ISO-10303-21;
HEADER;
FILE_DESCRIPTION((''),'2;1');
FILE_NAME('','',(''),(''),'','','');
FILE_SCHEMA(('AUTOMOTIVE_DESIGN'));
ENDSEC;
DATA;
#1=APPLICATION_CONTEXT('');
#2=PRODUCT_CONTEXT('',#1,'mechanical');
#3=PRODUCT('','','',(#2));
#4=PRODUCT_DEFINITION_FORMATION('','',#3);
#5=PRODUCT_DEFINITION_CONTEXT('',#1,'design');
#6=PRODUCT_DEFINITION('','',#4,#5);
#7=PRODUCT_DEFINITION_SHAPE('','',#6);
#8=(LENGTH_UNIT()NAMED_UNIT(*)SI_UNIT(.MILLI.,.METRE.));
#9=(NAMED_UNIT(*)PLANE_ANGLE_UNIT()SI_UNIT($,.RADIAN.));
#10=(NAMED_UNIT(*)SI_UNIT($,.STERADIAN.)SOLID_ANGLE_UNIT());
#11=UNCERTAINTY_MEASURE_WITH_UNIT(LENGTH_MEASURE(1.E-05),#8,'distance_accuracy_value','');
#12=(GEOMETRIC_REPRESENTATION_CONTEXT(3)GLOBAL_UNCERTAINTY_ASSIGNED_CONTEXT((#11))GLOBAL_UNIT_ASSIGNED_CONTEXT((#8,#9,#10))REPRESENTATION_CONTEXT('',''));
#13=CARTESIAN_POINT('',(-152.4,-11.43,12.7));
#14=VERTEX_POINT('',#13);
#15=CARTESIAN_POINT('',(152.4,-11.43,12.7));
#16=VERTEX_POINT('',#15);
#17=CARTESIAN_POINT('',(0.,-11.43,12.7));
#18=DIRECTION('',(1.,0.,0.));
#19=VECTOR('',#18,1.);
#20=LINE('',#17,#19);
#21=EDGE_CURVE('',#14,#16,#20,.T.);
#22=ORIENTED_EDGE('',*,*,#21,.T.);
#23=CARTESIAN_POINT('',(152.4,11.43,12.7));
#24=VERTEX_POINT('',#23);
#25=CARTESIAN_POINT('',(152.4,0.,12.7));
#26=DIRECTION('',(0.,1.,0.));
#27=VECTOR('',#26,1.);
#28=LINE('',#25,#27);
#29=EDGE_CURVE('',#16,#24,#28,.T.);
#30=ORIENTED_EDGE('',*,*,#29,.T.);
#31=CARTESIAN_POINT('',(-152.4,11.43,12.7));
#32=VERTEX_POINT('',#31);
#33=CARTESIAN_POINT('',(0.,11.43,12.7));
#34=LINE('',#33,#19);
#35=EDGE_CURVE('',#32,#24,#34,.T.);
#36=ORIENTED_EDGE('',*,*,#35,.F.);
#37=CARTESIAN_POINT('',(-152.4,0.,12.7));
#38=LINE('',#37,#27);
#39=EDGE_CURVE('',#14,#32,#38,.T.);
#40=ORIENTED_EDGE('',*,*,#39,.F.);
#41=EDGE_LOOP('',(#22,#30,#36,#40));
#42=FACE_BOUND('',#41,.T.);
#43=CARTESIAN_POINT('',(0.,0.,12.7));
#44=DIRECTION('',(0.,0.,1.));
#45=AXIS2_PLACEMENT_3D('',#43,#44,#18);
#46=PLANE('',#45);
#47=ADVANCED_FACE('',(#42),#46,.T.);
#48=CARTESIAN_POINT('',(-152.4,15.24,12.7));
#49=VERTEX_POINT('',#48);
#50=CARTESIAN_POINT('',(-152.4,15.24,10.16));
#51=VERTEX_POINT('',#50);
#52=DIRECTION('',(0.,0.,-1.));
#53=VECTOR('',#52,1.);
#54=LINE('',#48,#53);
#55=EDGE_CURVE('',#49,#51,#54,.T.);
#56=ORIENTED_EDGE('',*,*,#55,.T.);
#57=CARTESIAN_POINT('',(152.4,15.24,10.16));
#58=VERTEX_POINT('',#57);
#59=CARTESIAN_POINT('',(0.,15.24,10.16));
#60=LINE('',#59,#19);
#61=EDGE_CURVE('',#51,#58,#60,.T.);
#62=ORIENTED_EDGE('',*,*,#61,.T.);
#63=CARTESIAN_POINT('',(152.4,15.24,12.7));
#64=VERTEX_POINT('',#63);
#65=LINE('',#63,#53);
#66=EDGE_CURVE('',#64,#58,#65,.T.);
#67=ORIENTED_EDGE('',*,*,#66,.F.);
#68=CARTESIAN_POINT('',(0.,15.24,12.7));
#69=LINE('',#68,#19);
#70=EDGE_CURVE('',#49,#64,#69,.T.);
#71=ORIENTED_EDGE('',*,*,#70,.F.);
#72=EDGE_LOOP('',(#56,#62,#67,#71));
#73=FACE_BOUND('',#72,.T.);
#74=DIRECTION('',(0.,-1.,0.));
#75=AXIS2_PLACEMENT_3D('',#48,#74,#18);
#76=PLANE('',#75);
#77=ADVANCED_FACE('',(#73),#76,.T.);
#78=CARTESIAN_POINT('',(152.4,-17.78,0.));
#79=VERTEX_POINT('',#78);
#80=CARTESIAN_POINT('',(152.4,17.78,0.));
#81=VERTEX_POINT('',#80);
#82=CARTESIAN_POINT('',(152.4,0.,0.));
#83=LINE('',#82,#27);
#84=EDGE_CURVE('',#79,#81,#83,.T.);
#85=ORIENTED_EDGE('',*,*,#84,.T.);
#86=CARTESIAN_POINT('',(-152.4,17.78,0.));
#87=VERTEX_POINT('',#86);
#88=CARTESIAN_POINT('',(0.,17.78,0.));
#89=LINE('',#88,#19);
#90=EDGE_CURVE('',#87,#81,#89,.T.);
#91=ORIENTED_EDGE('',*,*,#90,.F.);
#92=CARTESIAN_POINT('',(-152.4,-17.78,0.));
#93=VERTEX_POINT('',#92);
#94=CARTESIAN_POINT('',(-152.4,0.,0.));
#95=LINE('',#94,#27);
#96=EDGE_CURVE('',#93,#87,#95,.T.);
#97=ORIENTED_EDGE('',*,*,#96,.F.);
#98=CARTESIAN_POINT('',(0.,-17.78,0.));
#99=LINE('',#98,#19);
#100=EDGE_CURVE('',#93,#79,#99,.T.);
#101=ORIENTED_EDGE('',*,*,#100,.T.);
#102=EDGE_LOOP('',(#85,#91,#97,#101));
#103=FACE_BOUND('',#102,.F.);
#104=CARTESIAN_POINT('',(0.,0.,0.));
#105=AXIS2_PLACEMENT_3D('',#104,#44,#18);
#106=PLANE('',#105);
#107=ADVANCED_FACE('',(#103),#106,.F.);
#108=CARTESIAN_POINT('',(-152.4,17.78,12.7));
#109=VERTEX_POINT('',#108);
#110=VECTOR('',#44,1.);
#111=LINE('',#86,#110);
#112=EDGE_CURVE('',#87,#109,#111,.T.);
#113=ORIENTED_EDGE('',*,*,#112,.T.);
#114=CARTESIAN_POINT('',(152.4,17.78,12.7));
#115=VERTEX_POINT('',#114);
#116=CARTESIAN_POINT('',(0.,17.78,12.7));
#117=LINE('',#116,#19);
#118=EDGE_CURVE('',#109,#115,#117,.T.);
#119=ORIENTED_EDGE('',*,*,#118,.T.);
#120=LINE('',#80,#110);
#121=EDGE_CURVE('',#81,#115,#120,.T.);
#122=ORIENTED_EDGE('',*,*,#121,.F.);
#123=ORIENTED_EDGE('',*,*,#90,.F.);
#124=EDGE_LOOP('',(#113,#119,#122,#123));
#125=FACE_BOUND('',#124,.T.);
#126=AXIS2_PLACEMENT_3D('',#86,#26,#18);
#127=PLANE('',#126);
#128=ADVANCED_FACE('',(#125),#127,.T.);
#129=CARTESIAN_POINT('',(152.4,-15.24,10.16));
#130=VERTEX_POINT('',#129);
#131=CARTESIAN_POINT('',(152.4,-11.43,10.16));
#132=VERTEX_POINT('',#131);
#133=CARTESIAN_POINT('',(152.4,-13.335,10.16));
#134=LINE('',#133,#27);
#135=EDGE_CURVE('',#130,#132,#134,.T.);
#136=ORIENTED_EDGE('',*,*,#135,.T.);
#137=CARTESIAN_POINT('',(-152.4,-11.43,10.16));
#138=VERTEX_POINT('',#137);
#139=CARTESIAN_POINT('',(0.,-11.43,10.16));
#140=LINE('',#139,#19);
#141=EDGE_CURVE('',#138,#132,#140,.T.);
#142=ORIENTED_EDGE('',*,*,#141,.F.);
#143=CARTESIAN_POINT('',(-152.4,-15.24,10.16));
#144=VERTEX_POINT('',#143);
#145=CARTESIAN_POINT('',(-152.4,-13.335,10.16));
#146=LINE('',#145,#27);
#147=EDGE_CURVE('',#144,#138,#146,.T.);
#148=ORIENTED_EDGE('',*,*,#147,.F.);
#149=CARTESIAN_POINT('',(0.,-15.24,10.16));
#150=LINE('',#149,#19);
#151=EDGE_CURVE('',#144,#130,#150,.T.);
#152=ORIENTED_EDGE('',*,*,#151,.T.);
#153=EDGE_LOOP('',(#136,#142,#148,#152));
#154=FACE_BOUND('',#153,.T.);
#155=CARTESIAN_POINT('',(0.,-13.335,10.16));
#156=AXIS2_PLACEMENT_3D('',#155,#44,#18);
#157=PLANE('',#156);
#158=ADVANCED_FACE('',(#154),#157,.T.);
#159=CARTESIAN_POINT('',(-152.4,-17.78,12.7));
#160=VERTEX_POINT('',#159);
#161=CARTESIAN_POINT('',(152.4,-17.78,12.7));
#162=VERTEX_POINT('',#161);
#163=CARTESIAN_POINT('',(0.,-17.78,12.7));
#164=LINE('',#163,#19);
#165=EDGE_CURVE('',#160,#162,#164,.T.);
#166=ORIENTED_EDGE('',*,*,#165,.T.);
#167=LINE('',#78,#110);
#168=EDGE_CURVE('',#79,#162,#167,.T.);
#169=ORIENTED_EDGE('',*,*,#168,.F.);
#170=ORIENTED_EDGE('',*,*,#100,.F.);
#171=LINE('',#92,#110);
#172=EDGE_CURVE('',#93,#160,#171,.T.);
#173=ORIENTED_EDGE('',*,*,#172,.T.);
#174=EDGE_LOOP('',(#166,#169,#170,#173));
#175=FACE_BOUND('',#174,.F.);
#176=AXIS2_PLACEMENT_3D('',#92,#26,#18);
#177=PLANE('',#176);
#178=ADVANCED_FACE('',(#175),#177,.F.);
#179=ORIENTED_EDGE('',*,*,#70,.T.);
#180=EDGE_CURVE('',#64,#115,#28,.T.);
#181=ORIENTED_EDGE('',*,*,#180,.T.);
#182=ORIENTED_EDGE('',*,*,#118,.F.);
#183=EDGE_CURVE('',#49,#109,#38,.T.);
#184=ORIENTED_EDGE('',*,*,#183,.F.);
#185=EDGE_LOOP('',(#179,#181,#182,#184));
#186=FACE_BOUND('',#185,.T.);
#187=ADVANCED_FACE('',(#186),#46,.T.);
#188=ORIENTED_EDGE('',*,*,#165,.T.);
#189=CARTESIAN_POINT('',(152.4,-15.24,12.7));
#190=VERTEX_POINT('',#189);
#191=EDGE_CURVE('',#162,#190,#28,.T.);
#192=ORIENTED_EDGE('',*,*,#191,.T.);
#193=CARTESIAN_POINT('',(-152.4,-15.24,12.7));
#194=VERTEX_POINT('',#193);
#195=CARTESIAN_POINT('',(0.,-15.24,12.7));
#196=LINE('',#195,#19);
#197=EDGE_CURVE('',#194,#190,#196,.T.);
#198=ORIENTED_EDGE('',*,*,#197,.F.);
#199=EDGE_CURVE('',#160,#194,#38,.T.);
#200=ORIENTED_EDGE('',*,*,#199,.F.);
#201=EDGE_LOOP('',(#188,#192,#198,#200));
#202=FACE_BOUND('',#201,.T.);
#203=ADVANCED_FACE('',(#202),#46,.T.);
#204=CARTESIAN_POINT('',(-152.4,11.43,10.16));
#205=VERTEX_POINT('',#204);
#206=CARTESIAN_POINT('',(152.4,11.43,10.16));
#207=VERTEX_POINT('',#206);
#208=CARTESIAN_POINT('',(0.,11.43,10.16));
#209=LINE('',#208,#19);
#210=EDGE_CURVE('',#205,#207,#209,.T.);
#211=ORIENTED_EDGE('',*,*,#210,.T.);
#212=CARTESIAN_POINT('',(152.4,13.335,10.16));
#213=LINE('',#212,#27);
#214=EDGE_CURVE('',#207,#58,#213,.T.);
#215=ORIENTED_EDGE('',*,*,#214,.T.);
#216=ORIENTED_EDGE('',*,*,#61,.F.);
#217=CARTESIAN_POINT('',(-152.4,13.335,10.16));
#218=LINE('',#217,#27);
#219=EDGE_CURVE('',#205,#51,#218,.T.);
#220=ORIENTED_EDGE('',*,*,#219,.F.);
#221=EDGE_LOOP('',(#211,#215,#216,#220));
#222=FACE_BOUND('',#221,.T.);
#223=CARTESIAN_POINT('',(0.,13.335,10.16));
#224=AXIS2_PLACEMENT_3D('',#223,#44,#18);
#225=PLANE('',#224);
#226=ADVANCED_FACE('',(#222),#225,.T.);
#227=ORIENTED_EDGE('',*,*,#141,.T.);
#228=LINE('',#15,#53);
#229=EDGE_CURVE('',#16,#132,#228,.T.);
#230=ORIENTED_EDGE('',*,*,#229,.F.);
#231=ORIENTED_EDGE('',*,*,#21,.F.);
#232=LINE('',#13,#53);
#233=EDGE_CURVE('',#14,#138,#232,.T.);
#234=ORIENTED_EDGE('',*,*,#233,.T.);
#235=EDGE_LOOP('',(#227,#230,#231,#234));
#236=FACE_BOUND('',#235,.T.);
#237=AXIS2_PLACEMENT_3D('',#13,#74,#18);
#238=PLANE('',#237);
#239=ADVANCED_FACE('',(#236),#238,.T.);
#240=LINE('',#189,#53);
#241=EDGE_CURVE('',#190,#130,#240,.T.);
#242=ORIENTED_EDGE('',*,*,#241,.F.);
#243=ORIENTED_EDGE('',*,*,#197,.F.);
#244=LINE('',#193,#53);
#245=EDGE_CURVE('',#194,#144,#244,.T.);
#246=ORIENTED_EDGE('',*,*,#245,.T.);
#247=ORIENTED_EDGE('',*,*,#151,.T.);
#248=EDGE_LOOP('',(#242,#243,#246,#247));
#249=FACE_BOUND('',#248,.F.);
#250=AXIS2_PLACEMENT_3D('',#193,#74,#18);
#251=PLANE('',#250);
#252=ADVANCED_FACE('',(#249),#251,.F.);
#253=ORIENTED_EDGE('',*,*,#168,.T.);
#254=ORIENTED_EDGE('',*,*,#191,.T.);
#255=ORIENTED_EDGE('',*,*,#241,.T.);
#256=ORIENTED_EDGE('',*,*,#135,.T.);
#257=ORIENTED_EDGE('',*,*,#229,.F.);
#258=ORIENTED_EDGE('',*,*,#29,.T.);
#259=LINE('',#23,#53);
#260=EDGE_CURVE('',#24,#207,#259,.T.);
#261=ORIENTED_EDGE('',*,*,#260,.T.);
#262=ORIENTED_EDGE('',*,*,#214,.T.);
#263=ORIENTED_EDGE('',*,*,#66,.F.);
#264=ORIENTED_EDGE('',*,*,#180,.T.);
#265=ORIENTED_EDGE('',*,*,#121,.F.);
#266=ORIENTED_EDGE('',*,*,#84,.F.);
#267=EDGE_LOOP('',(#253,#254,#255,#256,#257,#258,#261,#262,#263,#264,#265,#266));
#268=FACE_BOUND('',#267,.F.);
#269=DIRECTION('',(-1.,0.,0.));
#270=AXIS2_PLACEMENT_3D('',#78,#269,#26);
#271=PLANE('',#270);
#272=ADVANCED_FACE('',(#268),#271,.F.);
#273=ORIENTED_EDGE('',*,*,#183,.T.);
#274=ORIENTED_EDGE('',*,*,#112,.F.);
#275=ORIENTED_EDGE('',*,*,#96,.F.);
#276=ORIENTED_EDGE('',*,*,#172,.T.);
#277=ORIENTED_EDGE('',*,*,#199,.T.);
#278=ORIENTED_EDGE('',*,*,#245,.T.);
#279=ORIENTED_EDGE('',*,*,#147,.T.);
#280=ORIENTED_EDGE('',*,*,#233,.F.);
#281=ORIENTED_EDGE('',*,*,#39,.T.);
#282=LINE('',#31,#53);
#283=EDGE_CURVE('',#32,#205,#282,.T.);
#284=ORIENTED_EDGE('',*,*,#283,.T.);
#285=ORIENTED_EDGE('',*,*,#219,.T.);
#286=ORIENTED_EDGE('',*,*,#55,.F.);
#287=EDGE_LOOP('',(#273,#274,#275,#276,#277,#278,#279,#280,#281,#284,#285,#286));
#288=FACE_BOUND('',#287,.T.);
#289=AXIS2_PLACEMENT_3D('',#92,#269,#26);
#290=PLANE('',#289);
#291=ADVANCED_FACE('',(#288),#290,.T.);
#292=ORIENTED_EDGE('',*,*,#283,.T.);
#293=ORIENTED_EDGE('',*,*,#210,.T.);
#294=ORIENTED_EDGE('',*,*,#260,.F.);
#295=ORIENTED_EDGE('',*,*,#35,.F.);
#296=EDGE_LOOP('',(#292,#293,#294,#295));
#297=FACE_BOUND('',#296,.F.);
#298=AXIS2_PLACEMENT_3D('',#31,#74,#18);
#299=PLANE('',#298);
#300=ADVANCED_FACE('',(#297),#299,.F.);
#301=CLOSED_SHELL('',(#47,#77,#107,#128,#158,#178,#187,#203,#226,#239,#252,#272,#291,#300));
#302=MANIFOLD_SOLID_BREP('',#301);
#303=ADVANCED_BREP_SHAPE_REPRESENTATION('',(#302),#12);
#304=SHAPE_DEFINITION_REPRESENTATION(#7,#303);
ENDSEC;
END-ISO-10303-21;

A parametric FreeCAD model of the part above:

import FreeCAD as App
import Part
import Sketcher
Q = App.Units.Quantity


def add_polygon(sketch, points):
    """Adds a closed chain of lines whose ends are joined by coincident constraints."""
    first, n = sketch.GeometryCount, len(points)
    for a, b in zip(points, points[1:] + points[:1]):
        sketch.addGeometry(Part.LineSegment(App.Vector(*a, 0), App.Vector(*b, 0)), False)
    for i in range(n):
        sketch.addConstraint(Sketcher.Constraint("Coincident", first + i, 2, first + (i + 1) % n, 1))

doc = App.newDocument("Part")
body = doc.addObject("PartDesign::Body", "Body")

# Sketch on XY plane
sketch1 = body.newObject("Sketcher::SketchObject", "Sketch")
sketch1.AttachmentSupport = (doc.getObject("XY_Plane"), [""])
sketch1.MapMode = "FlatFace"
add_polygon(sketch1, [(-152.4, 17.78), (-152.4, -17.78), (152.4, -17.78), (152.4, 17.78)])  # lines 0-3
sketch1.addConstraint([
    Sketcher.Constraint("Vertical", 0),
    Sketcher.Constraint("Horizontal", 1),
    Sketcher.Constraint("Vertical", 2),
    Sketcher.Constraint("Horizontal", 3),
    Sketcher.Constraint("Symmetric", 0, 2, 2, 2, -1, 1),
    Sketcher.Constraint("DistanceX", 1, 1, 1, 2, Q("12 in")),
    Sketcher.Constraint("DistanceY", 0, 2, 0, 1, Q("1.4 in")),
])
pad1 = body.newObject("PartDesign::Pad", "Pad")
pad1.Profile = sketch1
pad1.Length = Q("0.5 in")

# Sketch on XY plane
sketch2 = body.newObject("Sketcher::SketchObject", "Sketch001")
sketch2.AttachmentSupport = (doc.getObject("XY_Plane"), [""])
sketch2.MapMode = "FlatFace"
sketch2.AttachmentOffset = App.Placement(App.Vector(0, 0, 0.5 * 25.4), App.Rotation())
add_polygon(sketch2, [(-152.4, 15.24), (-152.4, 11.43), (152.4, 11.43), (152.4, 15.24)])  # lines 0-3
add_polygon(sketch2, [(-152.4, -11.43), (-152.4, -15.24), (152.4, -15.24), (152.4, -11.43)])  # lines 4-7
sketch2.addConstraint([
    Sketcher.Constraint("Vertical", 0),
    Sketcher.Constraint("Horizontal", 1),
    Sketcher.Constraint("Vertical", 2),
    Sketcher.Constraint("Horizontal", 3),
    Sketcher.Constraint("Vertical", 4),
    Sketcher.Constraint("Horizontal", 5),
    Sketcher.Constraint("Vertical", 6),
    Sketcher.Constraint("Horizontal", 7),
    Sketcher.Constraint("Symmetric", 2, 2, 4, 2, -1, 1),
    Sketcher.Constraint("Symmetric", 0, 2, 6, 2, -1, 1),
    Sketcher.Constraint("Vertical", 3, 2, 4, 2),
    Sketcher.Constraint("DistanceX", 1, 1, 1, 2, Q("12 in")),
    Sketcher.Constraint("DistanceY", 0, 2, 0, 1, Q("0.15 in")),
    Sketcher.Constraint("DistanceY", -1, 1, 2, 2, Q("0.6 in")),
])
pocket1 = body.newObject("PartDesign::Pocket", "Pocket")
pocket1.Profile = sketch2
pocket1.Length = Q("0.1 in")

doc.recompute()
